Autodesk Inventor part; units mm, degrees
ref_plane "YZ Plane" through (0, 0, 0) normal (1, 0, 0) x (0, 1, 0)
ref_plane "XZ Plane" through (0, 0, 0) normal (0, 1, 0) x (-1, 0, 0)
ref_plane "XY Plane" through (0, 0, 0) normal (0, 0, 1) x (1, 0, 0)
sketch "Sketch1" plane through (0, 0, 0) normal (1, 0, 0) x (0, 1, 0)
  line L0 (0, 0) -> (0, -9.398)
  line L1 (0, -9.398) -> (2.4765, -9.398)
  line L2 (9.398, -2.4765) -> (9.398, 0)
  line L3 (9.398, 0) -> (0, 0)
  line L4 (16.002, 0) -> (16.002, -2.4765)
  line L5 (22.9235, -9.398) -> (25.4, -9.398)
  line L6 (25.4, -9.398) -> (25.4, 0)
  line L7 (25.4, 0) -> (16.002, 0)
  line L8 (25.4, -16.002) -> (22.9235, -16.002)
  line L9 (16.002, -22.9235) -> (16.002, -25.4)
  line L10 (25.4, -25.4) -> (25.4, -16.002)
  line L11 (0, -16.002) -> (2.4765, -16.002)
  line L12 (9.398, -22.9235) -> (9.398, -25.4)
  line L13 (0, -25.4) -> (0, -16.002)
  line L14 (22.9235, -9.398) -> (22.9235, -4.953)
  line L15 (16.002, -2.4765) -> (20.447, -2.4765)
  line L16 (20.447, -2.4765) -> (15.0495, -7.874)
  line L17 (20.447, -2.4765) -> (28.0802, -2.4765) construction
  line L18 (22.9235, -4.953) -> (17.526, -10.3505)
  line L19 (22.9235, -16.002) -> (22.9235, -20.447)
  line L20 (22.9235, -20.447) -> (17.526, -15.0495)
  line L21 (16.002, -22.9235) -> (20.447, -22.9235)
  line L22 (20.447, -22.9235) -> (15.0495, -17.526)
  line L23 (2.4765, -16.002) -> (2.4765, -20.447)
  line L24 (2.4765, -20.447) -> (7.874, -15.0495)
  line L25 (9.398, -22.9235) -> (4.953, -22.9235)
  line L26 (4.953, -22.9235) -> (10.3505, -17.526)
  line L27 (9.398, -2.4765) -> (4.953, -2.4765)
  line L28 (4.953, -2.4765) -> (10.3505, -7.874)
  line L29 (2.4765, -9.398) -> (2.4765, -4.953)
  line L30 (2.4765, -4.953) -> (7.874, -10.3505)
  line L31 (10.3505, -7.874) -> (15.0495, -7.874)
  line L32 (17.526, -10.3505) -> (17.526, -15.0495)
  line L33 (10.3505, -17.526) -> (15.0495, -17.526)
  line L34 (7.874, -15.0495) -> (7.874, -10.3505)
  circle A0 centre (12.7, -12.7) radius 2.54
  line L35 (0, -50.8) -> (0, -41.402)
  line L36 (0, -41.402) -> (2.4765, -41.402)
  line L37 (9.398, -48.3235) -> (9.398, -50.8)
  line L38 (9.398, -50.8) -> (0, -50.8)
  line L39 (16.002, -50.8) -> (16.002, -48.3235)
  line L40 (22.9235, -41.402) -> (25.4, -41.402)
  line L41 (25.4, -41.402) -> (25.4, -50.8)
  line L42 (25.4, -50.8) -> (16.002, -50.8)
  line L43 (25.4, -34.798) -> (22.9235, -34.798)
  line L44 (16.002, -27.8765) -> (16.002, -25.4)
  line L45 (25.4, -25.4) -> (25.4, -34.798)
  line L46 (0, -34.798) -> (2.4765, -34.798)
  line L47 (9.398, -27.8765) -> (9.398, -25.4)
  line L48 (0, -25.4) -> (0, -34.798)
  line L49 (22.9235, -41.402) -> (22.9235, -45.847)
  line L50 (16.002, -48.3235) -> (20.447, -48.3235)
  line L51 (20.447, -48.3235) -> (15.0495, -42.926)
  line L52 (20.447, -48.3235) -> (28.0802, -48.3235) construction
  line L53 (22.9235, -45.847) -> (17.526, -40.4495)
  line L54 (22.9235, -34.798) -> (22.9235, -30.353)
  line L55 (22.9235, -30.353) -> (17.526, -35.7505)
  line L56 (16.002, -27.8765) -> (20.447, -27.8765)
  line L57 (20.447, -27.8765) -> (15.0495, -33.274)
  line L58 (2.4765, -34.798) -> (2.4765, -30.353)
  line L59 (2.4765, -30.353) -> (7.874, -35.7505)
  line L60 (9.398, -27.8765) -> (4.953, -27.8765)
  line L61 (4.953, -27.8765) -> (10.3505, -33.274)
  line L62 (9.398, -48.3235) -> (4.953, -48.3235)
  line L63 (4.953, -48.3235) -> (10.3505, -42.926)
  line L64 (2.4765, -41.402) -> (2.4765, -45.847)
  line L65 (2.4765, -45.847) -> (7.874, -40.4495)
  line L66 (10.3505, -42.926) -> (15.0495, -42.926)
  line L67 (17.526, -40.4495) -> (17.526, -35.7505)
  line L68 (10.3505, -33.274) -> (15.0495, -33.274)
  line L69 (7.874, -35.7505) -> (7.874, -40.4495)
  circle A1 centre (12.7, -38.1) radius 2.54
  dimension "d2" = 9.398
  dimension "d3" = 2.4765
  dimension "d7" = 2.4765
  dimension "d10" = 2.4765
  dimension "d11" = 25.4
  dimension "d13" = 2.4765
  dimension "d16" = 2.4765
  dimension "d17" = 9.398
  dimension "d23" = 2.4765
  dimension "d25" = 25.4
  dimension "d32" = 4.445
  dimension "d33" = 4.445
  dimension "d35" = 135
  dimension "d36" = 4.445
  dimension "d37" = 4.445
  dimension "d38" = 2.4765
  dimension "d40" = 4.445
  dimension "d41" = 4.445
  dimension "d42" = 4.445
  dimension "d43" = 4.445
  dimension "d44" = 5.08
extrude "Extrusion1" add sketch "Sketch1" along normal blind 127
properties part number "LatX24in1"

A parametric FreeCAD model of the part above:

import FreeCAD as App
import Part
import Sketcher

V = App.Vector
Q = App.Units.Quantity

doc = App.newDocument("Part")
params = doc.addObject("Spreadsheet::Sheet", "Params")
for row, (alias, value) in enumerate([
    ("sketch1_diameter", "0.2 in"),
    ("sketch1_width", "0.37 in"),
    ("sketch1_width2", "0.175 in"),
    ("sketch1_width3", "0.185 in"),
    ("sketch1_height", "0.195 in"),
    ("pad1_length", "5 in"),
], start=1):
    params.set(f"A{row}", alias)
    params.set(f"B{row}", "=" + value)
    params.setAlias(f"B{row}", alias)

body = doc.addObject("PartDesign::Body", "Body")

sketch1 = body.newObject("Sketcher::SketchObject", "Sketch")
sketch1.AttachmentSupport = (doc.getObject("YZ_Plane"), [""])
sketch1.MapMode = "FlatFace"
sketch1.addGeometry([
    Part.LineSegment(V(9.4, 0, 0), V(0, 0, 0)),
    Part.LineSegment(V(0, 0, 0), V(0, -9.4, 0)),
    Part.LineSegment(V(0, -9.4, 0), V(2.5, -9.4, 0)),
    Part.LineSegment(V(2.5, -9.4, 0), V(2.5, -5, 0)),
    Part.LineSegment(V(2.5, -5, 0), V(7.9, -10.4, 0)),
    Part.LineSegment(V(7.9, -10.4, 0), V(7.9, -15, 0)),
    Part.LineSegment(V(7.9, -15, 0), V(2.5, -20.4, 0)),
    Part.LineSegment(V(2.5, -20.4, 0), V(2.5, -16, 0)),
    Part.LineSegment(V(2.5, -16, 0), V(0, -16, 0)),
    Part.LineSegment(V(0, -16, 0), V(0, -34.8, 0)),
    Part.LineSegment(V(0, -34.8, 0), V(2.5, -34.8, 0)),
    Part.LineSegment(V(2.5, -34.8, 0), V(2.5, -30.4, 0)),
    Part.LineSegment(V(2.5, -30.4, 0), V(7.9, -35.8, 0)),
    Part.LineSegment(V(7.9, -35.8, 0), V(7.9, -40.4, 0)),
    Part.LineSegment(V(7.9, -40.4, 0), V(2.5, -45.8, 0)),
    Part.LineSegment(V(2.5, -45.8, 0), V(2.5, -41.4, 0)),
    Part.LineSegment(V(2.5, -41.4, 0), V(0, -41.4, 0)),
    Part.LineSegment(V(0, -41.4, 0), V(0, -50.8, 0)),
    Part.LineSegment(V(0, -50.8, 0), V(9.4, -50.8, 0)),
    Part.LineSegment(V(9.4, -50.8, 0), V(9.4, -48.3, 0)),
    Part.LineSegment(V(9.4, -48.3, 0), V(5, -48.3, 0)),
    Part.LineSegment(V(5, -48.3, 0), V(10.4, -42.9, 0)),
    Part.LineSegment(V(10.4, -42.9, 0), V(15, -42.9, 0)),
    Part.LineSegment(V(15, -42.9, 0), V(20.4, -48.3, 0)),
    Part.LineSegment(V(20.4, -48.3, 0), V(16, -48.3, 0)),
    Part.LineSegment(V(16, -48.3, 0), V(16, -50.8, 0)),
    Part.LineSegment(V(16, -50.8, 0), V(25.4, -50.8, 0)),
    Part.LineSegment(V(25.4, -50.8, 0), V(25.4, -41.4, 0)),
    Part.LineSegment(V(25.4, -41.4, 0), V(22.9, -41.4, 0)),
    Part.LineSegment(V(22.9, -41.4, 0), V(22.9, -45.8, 0)),
    Part.LineSegment(V(22.9, -45.8, 0), V(17.5, -40.4, 0)),
    Part.LineSegment(V(17.5, -40.4, 0), V(17.5, -35.8, 0)),
    Part.LineSegment(V(17.5, -35.8, 0), V(22.9, -30.4, 0)),
    Part.LineSegment(V(22.9, -30.4, 0), V(22.9, -34.8, 0)),
    Part.LineSegment(V(22.9, -34.8, 0), V(25.4, -34.8, 0)),
    Part.LineSegment(V(25.4, -34.8, 0), V(25.4, -16, 0)),
    Part.LineSegment(V(25.4, -16, 0), V(22.9, -16, 0)),
    Part.LineSegment(V(22.9, -16, 0), V(22.9, -20.4, 0)),
    Part.LineSegment(V(22.9, -20.4, 0), V(17.5, -15, 0)),
    Part.LineSegment(V(17.5, -15, 0), V(17.5, -10.4, 0)),
    Part.LineSegment(V(17.5, -10.4, 0), V(22.9, -5, 0)),
    Part.LineSegment(V(22.9, -5, 0), V(22.9, -9.4, 0)),
    Part.LineSegment(V(22.9, -9.4, 0), V(25.4, -9.4, 0)),
    Part.LineSegment(V(25.4, -9.4, 0), V(25.4, 0, 0)),
    Part.LineSegment(V(25.4, 0, 0), V(16, 0, 0)),
    Part.LineSegment(V(16, 0, 0), V(16, -2.5, 0)),
    Part.LineSegment(V(16, -2.5, 0), V(20.4, -2.5, 0)),
    Part.LineSegment(V(20.4, -2.5, 0), V(15, -7.9, 0)),
    Part.LineSegment(V(15, -7.9, 0), V(10.4, -7.9, 0)),
    Part.LineSegment(V(10.4, -7.9, 0), V(5, -2.5, 0)),
    Part.LineSegment(V(5, -2.5, 0), V(9.4, -2.5, 0)),
    Part.LineSegment(V(9.4, -2.5, 0), V(9.4, 0, 0)),
    Part.Circle(V(12.7, -38.1, 0), V(0, 0, 1), 2.5),
    Part.LineSegment(V(20.4, -22.9, 0), V(16, -22.9, 0)),
    Part.LineSegment(V(16, -22.9, 0), V(16, -27.9, 0)),
    Part.LineSegment(V(16, -27.9, 0), V(20.4, -27.9, 0)),
    Part.LineSegment(V(20.4, -27.9, 0), V(15, -33.3, 0)),
    Part.LineSegment(V(15, -33.3, 0), V(10.4, -33.3, 0)),
    Part.LineSegment(V(10.4, -33.3, 0), V(5, -27.9, 0)),
    Part.LineSegment(V(5, -27.9, 0), V(9.4, -27.9, 0)),
    Part.LineSegment(V(9.4, -27.9, 0), V(9.4, -22.9, 0)),
    Part.LineSegment(V(9.4, -22.9, 0), V(5, -22.9, 0)),
    Part.LineSegment(V(5, -22.9, 0), V(10.4, -17.5, 0)),
    Part.LineSegment(V(10.4, -17.5, 0), V(15, -17.5, 0)),
    Part.LineSegment(V(15, -17.5, 0), V(20.4, -22.9, 0)),
    Part.Circle(V(12.7, -12.7, 0), V(0, 0, 1), 2.5),
], False)
sketch1.addConstraint([
    Sketcher.Constraint("Coincident", 0, 2, 1, 1),
    Sketcher.Constraint("Coincident", 1, 2, 2, 1),
    Sketcher.Constraint("Coincident", 2, 2, 3, 1),
    Sketcher.Constraint("Coincident", 3, 2, 4, 1),
    Sketcher.Constraint("Coincident", 4, 2, 5, 1),
    Sketcher.Constraint("Coincident", 5, 2, 6, 1),
    Sketcher.Constraint("Coincident", 6, 2, 7, 1),
    Sketcher.Constraint("Coincident", 7, 2, 8, 1),
    Sketcher.Constraint("Coincident", 8, 2, 9, 1),
    Sketcher.Constraint("Coincident", 9, 2, 10, 1),
    Sketcher.Constraint("Coincident", 10, 2, 11, 1),
    Sketcher.Constraint("Coincident", 11, 2, 12, 1),
    Sketcher.Constraint("Coincident", 12, 2, 13, 1),
    Sketcher.Constraint("Coincident", 13, 2, 14, 1),
    Sketcher.Constraint("Coincident", 14, 2, 15, 1),
    Sketcher.Constraint("Coincident", 15, 2, 16, 1),
    Sketcher.Constraint("Coincident", 16, 2, 17, 1),
    Sketcher.Constraint("Coincident", 17, 2, 18, 1),
    Sketcher.Constraint("Coincident", 18, 2, 19, 1),
    Sketcher.Constraint("Coincident", 19, 2, 20, 1),
    Sketcher.Constraint("Coincident", 20, 2, 21, 1),
    Sketcher.Constraint("Coincident", 21, 2, 22, 1),
    Sketcher.Constraint("Coincident", 22, 2, 23, 1),
    Sketcher.Constraint("Coincident", 23, 2, 24, 1),
    Sketcher.Constraint("Coincident", 24, 2, 25, 1),
    Sketcher.Constraint("Coincident", 25, 2, 26, 1),
    Sketcher.Constraint("Coincident", 26, 2, 27, 1),
    Sketcher.Constraint("Coincident", 27, 2, 28, 1),
    Sketcher.Constraint("Coincident", 28, 2, 29, 1),
    Sketcher.Constraint("Coincident", 29, 2, 30, 1),
    Sketcher.Constraint("Coincident", 30, 2, 31, 1),
    Sketcher.Constraint("Coincident", 31, 2, 32, 1),
    Sketcher.Constraint("Coincident", 32, 2, 33, 1),
    Sketcher.Constraint("Coincident", 33, 2, 34, 1),
    Sketcher.Constraint("Coincident", 34, 2, 35, 1),
    Sketcher.Constraint("Coincident", 35, 2, 36, 1),
    Sketcher.Constraint("Coincident", 36, 2, 37, 1),
    Sketcher.Constraint("Coincident", 37, 2, 38, 1),
    Sketcher.Constraint("Coincident", 38, 2, 39, 1),
    Sketcher.Constraint("Coincident", 39, 2, 40, 1),
    Sketcher.Constraint("Coincident", 40, 2, 41, 1),
    Sketcher.Constraint("Coincident", 41, 2, 42, 1),
    Sketcher.Constraint("Coincident", 42, 2, 43, 1),
    Sketcher.Constraint("Coincident", 43, 2, 44, 1),
    Sketcher.Constraint("Coincident", 44, 2, 45, 1),
    Sketcher.Constraint("Coincident", 45, 2, 46, 1),
    Sketcher.Constraint("Coincident", 46, 2, 47, 1),
    Sketcher.Constraint("Coincident", 47, 2, 48, 1),
    Sketcher.Constraint("Coincident", 48, 2, 49, 1),
    Sketcher.Constraint("Coincident", 49, 2, 50, 1),
    Sketcher.Constraint("Coincident", 50, 2, 51, 1),
    Sketcher.Constraint("Coincident", 51, 2, 0, 1),
    Sketcher.Constraint("Coincident", 53, 2, 54, 1),
    Sketcher.Constraint("Coincident", 54, 2, 55, 1),
    Sketcher.Constraint("Coincident", 55, 2, 56, 1),
    Sketcher.Constraint("Coincident", 56, 2, 57, 1),
    Sketcher.Constraint("Coincident", 57, 2, 58, 1),
    Sketcher.Constraint("Coincident", 58, 2, 59, 1),
    Sketcher.Constraint("Coincident", 59, 2, 60, 1),
    Sketcher.Constraint("Coincident", 60, 2, 61, 1),
    Sketcher.Constraint("Coincident", 61, 2, 62, 1),
    Sketcher.Constraint("Coincident", 62, 2, 63, 1),
    Sketcher.Constraint("Coincident", 63, 2, 64, 1),
    Sketcher.Constraint("Coincident", 64, 2, 53, 1),
    Sketcher.Constraint("Horizontal", 0),
    Sketcher.Constraint("Vertical", 1),
    Sketcher.Constraint("Horizontal", 2),
    Sketcher.Constraint("Vertical", 3),
    Sketcher.Constraint("Vertical", 5),
    Sketcher.Constraint("Vertical", 7),
    Sketcher.Constraint("Horizontal", 8),
    Sketcher.Constraint("Vertical", 9),
    Sketcher.Constraint("Horizontal", 10),
    Sketcher.Constraint("Vertical", 11),
    Sketcher.Constraint("Vertical", 13),
    Sketcher.Constraint("Vertical", 15),
    Sketcher.Constraint("Horizontal", 16),
    Sketcher.Constraint("Vertical", 17),
    Sketcher.Constraint("Horizontal", 18),
    Sketcher.Constraint("Vertical", 19),
    Sketcher.Constraint("Horizontal", 20),
    Sketcher.Constraint("Horizontal", 22),
    Sketcher.Constraint("Horizontal", 24),
    Sketcher.Constraint("Vertical", 25),
    Sketcher.Constraint("Horizontal", 26),
    Sketcher.Constraint("Vertical", 27),
    Sketcher.Constraint("Horizontal", 28),
    Sketcher.Constraint("Vertical", 29),
    Sketcher.Constraint("Vertical", 31),
    Sketcher.Constraint("Vertical", 33),
    Sketcher.Constraint("Horizontal", 34),
    Sketcher.Constraint("Vertical", 35),
    Sketcher.Constraint("Horizontal", 36),
    Sketcher.Constraint("Vertical", 37),
    Sketcher.Constraint("Vertical", 39),
    Sketcher.Constraint("Vertical", 41),
    Sketcher.Constraint("Horizontal", 42),
    Sketcher.Constraint("Vertical", 43),
    Sketcher.Constraint("Horizontal", 44),
    Sketcher.Constraint("Vertical", 45),
    Sketcher.Constraint("Horizontal", 46),
    Sketcher.Constraint("Horizontal", 48),
    Sketcher.Constraint("Horizontal", 50),
    Sketcher.Constraint("Vertical", 51),
    Sketcher.Constraint("Horizontal", 53),
    Sketcher.Constraint("Vertical", 54),
    Sketcher.Constraint("Horizontal", 55),
    Sketcher.Constraint("Horizontal", 57),
    Sketcher.Constraint("Horizontal", 59),
    Sketcher.Constraint("Vertical", 60),
    Sketcher.Constraint("Horizontal", 61),
    Sketcher.Constraint("Horizontal", 63),
    Sketcher.Constraint("Coincident", 0, 2, -1, 1),
    Sketcher.Constraint("Equal", 52, 65),
    Sketcher.Constraint("PointOnObject", 8, 2, -2),
    Sketcher.Constraint("PointOnObject", 16, 2, -2),
    Sketcher.Constraint("PointOnObject", 43, 2, -1),
    Sketcher.Constraint("Perpendicular", 4, 6),
    Sketcher.Constraint("Perpendicular", 6, 12),
    Sketcher.Constraint("Perpendicular", 12, 14),
    Sketcher.Constraint("Parallel", 14, 21),
    Sketcher.Constraint("Perpendicular", 21, 23),
    Sketcher.Constraint("Parallel", 23, 30),
    Sketcher.Constraint("Perpendicular", 30, 32),
    Sketcher.Constraint("Perpendicular", 32, 38),
    Sketcher.Constraint("Perpendicular", 38, 40),
    Sketcher.Constraint("Parallel", 40, 47),
    Sketcher.Constraint("Perpendicular", 47, 49),
    Sketcher.Constraint("Perpendicular", 49, 56),
    Sketcher.Constraint("Perpendicular", 56, 58),
    Sketcher.Constraint("Perpendicular", 58, 62),
    Sketcher.Constraint("Perpendicular", 62, 64),
    Sketcher.Constraint("Horizontal", 20, 2, 23, 2),
    Sketcher.Constraint("Horizontal", 18, 2, 25, 2),
    Sketcher.Constraint("Horizontal", 16, 2, 27, 2),
    Sketcher.Constraint("Horizontal", 14, 2, 29, 2),
    Sketcher.Constraint("Horizontal", 13, 2, 30, 2),
    Sketcher.Constraint("Horizontal", 12, 2, 31, 2),
    Sketcher.Constraint("Horizontal", 11, 2, 32, 2),
    Sketcher.Constraint("Horizontal", 10, 2, 33, 2),
    Sketcher.Constraint("Horizontal", 8, 2, 35, 2),
    Sketcher.Constraint("Horizontal", 6, 2, 37, 2),
    Sketcher.Constraint("Horizontal", 5, 2, 38, 2),
    Sketcher.Constraint("Horizontal", 4, 2, 39, 2),
    Sketcher.Constraint("Horizontal", 3, 2, 40, 2),
    Sketcher.Constraint("Horizontal", 2, 2, 41, 2),
    Sketcher.Constraint("Horizontal", 46, 2, 49, 2),
    Sketcher.Constraint("Horizontal", 55, 2, 58, 2),
    Sketcher.Constraint("Horizontal", 53, 2, 60, 2),
    Sketcher.Constraint("Vertical", 52, 3, 65, 3),
    Sketcher.Constraint("Vertical", 3, 2, 6, 2),
    Sketcher.Constraint("Vertical", 7, 2, 10, 2),
    Sketcher.Constraint("Vertical", 5, 2, 12, 2),
    Sketcher.Constraint("Vertical", 11, 2, 14, 2),
    Sketcher.Constraint("Vertical", 29, 2, 32, 2),
    Sketcher.Constraint("Vertical", 27, 2, 34, 2),
    Sketcher.Constraint("Vertical", 33, 2, 36, 2),
    Sketcher.Constraint("Vertical", 35, 2, 42, 2),
    Sketcher.Constraint("Vertical", 25, 2, 44, 2),
    Sketcher.Constraint("Vertical", 23, 2, 46, 2),
    Sketcher.Constraint("Vertical", 22, 2, 47, 2),
    Sketcher.Constraint("Vertical", 21, 2, 48, 2),
    Sketcher.Constraint("Vertical", 19, 2, 50, 2),
    Sketcher.Constraint("Vertical", 45, 2, 53, 2),
    Sketcher.Constraint("Vertical", 46, 2, 55, 2),
    Sketcher.Constraint("Vertical", 47, 2, 56, 2),
    Sketcher.Constraint("Vertical", 48, 2, 57, 2),
    Sketcher.Constraint("Vertical", 51, 2, 59, 2),
    Sketcher.Constraint("Vertical", 58, 2, 61, 2),
    Sketcher.Constraint("Vertical", 57, 2, 62, 2),
    Sketcher.Constraint("Vertical", 56, 2, 63, 2),
    Sketcher.Constraint("Equal", 20, 24),
    Sketcher.Constraint("Equal", 18, 26),
    Sketcher.Constraint("Equal", 16, 28),
    Sketcher.Constraint("Equal", 44, 1),
    Sketcher.Constraint("Equal", 61, 3),
    Sketcher.Constraint("Equal", 63, 5),
    Sketcher.Constraint("Equal", 3, 7),
    Sketcher.Constraint("Equal", 7, 11),
    Sketcher.Constraint("Equal", 5, 13),
    Sketcher.Constraint("Equal", 11, 15),
    Sketcher.Constraint("Equal", 1, 17),
    Sketcher.Constraint("Equal", 42, 19),
    Sketcher.Constraint("Equal", 25, 45),
    Sketcher.Constraint("Equal", 14, 21),
    Sketcher.Constraint("Diameter", 52, Q("0.2 in")),
    Sketcher.Constraint("DistanceX", -1, 1, 26, 2, Q("1 in")),
    Sketcher.Constraint("DistanceX", 0, 2, 0, 1, Q("0.37 in")),
    Sketcher.Constraint("DistanceX", 20, 2, 20, 1, Q("0.175 in")),
    Sketcher.Constraint("DistanceX", 2, 1, 2, 2, Q("0.0975 in")),
    Sketcher.Constraint("DistanceY", 17, 2, -1, 1, Q("2 in")),
    Sketcher.Constraint("DistanceX", -1, 1, 52, 3, Q("0.5 in")),
    Sketcher.Constraint("DistanceY", 52, 3, -1, 1, Q("1.5 in")),
    Sketcher.Constraint("DistanceY", 65, 3, -1, 1, Q("0.5 in")),
    Sketcher.Constraint("DistanceX", 22, 1, 22, 2, Q("0.185 in")),
    Sketcher.Constraint("DistanceY", 54, 2, 54, 1, Q("0.195 in")),
    Sketcher.Constraint("DistanceY", 56, 2, -1, 1, Q("1.31 in")),
])
sketch1.setExpression("Constraints[185]", "Params.sketch1_diameter")
sketch1.setExpression("Constraints[187]", "Params.sketch1_width")
sketch1.setExpression("Constraints[188]", "Params.sketch1_width2")
sketch1.setExpression("Constraints[194]", "Params.sketch1_width3")
sketch1.setExpression("Constraints[195]", "Params.sketch1_height")
pad1 = body.newObject("PartDesign::Pad", "Pad")
pad1.Profile = sketch1
pad1.setExpression("Length", "Params.pad1_length")

doc.recompute()
